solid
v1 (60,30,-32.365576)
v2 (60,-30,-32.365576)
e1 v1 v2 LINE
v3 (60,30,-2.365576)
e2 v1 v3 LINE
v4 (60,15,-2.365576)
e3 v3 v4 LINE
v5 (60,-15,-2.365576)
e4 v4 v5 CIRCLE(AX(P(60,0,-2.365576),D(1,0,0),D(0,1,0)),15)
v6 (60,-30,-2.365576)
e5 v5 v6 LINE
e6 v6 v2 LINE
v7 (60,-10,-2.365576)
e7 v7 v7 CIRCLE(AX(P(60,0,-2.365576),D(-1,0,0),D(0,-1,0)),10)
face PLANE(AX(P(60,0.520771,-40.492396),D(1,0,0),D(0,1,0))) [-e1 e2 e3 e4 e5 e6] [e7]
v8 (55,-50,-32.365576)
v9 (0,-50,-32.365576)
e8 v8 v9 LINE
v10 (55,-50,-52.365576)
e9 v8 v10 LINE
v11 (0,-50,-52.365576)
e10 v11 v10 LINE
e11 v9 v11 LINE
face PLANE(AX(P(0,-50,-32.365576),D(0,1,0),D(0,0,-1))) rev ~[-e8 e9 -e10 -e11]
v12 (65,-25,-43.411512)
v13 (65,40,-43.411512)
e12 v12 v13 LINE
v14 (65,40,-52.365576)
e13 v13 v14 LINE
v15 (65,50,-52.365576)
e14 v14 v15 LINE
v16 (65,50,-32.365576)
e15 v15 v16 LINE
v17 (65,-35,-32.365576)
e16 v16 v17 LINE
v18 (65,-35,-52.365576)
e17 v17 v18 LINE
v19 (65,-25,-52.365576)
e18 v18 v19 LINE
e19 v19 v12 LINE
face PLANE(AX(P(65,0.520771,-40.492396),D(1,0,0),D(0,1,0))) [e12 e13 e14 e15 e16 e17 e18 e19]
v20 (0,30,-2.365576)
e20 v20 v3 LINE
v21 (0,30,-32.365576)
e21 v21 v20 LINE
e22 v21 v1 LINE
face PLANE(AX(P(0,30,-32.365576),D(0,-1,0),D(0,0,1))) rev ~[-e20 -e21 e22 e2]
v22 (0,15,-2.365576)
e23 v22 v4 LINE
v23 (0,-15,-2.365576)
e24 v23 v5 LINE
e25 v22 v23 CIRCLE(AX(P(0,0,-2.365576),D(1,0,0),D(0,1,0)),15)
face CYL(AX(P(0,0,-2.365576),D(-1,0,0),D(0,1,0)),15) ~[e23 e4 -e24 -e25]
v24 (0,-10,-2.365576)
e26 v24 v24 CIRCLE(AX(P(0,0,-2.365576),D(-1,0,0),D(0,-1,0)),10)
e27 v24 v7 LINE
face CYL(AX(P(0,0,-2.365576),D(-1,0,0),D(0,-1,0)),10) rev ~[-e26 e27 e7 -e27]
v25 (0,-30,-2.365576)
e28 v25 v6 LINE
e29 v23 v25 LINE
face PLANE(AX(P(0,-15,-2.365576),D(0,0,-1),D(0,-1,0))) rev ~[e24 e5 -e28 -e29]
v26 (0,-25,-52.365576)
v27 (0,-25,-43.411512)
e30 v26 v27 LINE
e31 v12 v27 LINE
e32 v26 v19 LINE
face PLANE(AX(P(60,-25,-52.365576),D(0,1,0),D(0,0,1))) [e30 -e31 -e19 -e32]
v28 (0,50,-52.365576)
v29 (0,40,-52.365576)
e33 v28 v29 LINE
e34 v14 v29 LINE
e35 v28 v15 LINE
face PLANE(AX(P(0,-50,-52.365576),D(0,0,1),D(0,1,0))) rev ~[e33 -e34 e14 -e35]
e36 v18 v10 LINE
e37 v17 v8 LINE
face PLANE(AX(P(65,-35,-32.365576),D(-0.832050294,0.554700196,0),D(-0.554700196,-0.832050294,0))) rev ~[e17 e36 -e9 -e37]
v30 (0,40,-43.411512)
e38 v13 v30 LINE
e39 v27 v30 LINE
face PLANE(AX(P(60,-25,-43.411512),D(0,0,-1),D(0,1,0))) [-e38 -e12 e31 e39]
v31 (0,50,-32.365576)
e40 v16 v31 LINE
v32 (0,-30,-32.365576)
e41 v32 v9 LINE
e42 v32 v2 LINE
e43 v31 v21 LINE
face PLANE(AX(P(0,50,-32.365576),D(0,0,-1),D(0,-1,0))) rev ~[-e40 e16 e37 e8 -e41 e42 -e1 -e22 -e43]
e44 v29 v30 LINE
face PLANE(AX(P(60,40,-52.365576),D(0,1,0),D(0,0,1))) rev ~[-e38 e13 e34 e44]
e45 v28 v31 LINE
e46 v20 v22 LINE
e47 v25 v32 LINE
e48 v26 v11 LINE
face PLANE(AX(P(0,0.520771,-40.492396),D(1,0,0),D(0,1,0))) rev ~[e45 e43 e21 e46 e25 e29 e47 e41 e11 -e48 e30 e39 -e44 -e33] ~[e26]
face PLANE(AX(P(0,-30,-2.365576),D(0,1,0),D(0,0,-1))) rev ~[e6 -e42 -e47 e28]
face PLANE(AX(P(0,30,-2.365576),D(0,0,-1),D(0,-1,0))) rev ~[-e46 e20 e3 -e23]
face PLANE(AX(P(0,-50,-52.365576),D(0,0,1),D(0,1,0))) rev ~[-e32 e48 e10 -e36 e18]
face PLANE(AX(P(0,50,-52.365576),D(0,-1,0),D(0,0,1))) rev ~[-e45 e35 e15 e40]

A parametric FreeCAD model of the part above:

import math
import FreeCAD as App
import Part
import Sketcher
from FreeCAD import Vector

doc = App.newDocument("Part")
body = doc.addObject("PartDesign::Body", "Body")

sketch1 = body.newObject("Sketcher::SketchObject", "Sketch")
sketch1.AttachmentSupport = (doc.getObject("YZ_Plane"), [""])
sketch1.MapMode = "FlatFace"
sketch1.addGeometry([
    Part.LineSegment(Vector(-50, -32, 0), Vector(-50, -52, 0)),
    Part.LineSegment(Vector(-50, -52, 0), Vector(-25, -52, 0)),
    Part.LineSegment(Vector(-25, -52, 0), Vector(-25, -43, 0)),
    Part.LineSegment(Vector(-25, -43, 0), Vector(40, -43, 0)),
    Part.LineSegment(Vector(40, -43, 0), Vector(40, -52, 0)),
    Part.LineSegment(Vector(40, -52, 0), Vector(50, -52, 0)),
    Part.LineSegment(Vector(50, -52, 0), Vector(50, -32, 0)),
    Part.LineSegment(Vector(50, -32, 0), Vector(-50, -32, 0)),
], False)
sketch1.addConstraint([
    Sketcher.Constraint("Coincident", 0, 2, 1, 1),
    Sketcher.Constraint("Coincident", 1, 2, 2, 1),
    Sketcher.Constraint("Coincident", 2, 2, 3, 1),
    Sketcher.Constraint("Coincident", 3, 2, 4, 1),
    Sketcher.Constraint("Coincident", 4, 2, 5, 1),
    Sketcher.Constraint("Coincident", 5, 2, 6, 1),
    Sketcher.Constraint("Coincident", 6, 2, 7, 1),
    Sketcher.Constraint("Coincident", 7, 2, 0, 1),
    Sketcher.Constraint("Vertical", 0),
    Sketcher.Constraint("Horizontal", 1),
    Sketcher.Constraint("Vertical", 2),
    Sketcher.Constraint("Horizontal", 3),
    Sketcher.Constraint("Vertical", 4),
    Sketcher.Constraint("Horizontal", 5),
    Sketcher.Constraint("Vertical", 6),
    Sketcher.Constraint("Horizontal", 7),
    Sketcher.Constraint("Symmetric", 0, 2, 5, 2, -2),
    Sketcher.Constraint("DistanceX", 1, 1, 1, 2, 25.0),
    Sketcher.Constraint("DistanceX", 3, 1, 3, 2, 65.0),
    Sketcher.Constraint("DistanceX", 5, 1, 5, 2, 10.0),
    Sketcher.Constraint("DistanceY", 0, 2, 0, 1, 20.0),
    Sketcher.Constraint("DistanceY", 2, 1, 2, 2, 8.954064),
    Sketcher.Constraint("DistanceY", 2, 2, -1, 1, 43.411512),
])
pad1 = body.newObject("PartDesign::Pad", "Pad")
pad1.Profile = sketch1
pad1.Length = 65

sketch2 = body.newObject("Sketcher::SketchObject", "Sketch001")
sketch2.AttachmentSupport = (doc.getObject("YZ_Plane"), [""])
sketch2.MapMode = "FlatFace"
sketch2.addGeometry([
    Part.LineSegment(Vector(-50, -32, 0), Vector(-50, -52, 0)),
    Part.LineSegment(Vector(-50, -52, 0), Vector(50, -52, 0)),
    Part.LineSegment(Vector(50, -52, 0), Vector(50, -32, 0)),
    Part.LineSegment(Vector(50, -32, 0), Vector(30, -32, 0)),
    Part.LineSegment(Vector(30, -32, 0), Vector(30, -2, 0)),
    Part.LineSegment(Vector(30, -2, 0), Vector(15, -2, 0)),
    Part.ArcOfCircle(Part.Circle(Vector(0, -2, 0), Vector(0, 0, 1), 15), math.radians(0), math.radians(180)),
    Part.LineSegment(Vector(-15, -2, 0), Vector(-30, -2, 0)),
    Part.LineSegment(Vector(-30, -2, 0), Vector(-30, -32, 0)),
    Part.LineSegment(Vector(-30, -32, 0), Vector(-50, -32, 0)),
    Part.Circle(Vector(0, -2, 0), Vector(0, 0, 1), 10),
], False)
sketch2.addConstraint([
    Sketcher.Constraint("Coincident", 0, 2, 1, 1),
    Sketcher.Constraint("Coincident", 1, 2, 2, 1),
    Sketcher.Constraint("Coincident", 2, 2, 3, 1),
    Sketcher.Constraint("Coincident", 3, 2, 4, 1),
    Sketcher.Constraint("Coincident", 4, 2, 5, 1),
    Sketcher.Constraint("Coincident", 5, 2, 6, 1),
    Sketcher.Constraint("Coincident", 6, 2, 7, 1),
    Sketcher.Constraint("Coincident", 7, 2, 8, 1),
    Sketcher.Constraint("Coincident", 8, 2, 9, 1),
    Sketcher.Constraint("Coincident", 9, 2, 0, 1),
    Sketcher.Constraint("Vertical", 0),
    Sketcher.Constraint("Horizontal", 1),
    Sketcher.Constraint("Vertical", 2),
    Sketcher.Constraint("Horizontal", 3),
    Sketcher.Constraint("Vertical", 4),
    Sketcher.Constraint("Horizontal", 5),
    Sketcher.Constraint("Horizontal", 7),
    Sketcher.Constraint("Vertical", 8),
    Sketcher.Constraint("Horizontal", 9),
    Sketcher.Constraint("Coincident", 10, 3, 6, 3),
    Sketcher.Constraint("Symmetric", 5, 2, 6, 2, -2),
    Sketcher.Constraint("Symmetric", 3, 2, 8, 2, -2),
    Sketcher.Constraint("Horizontal", 10, 3, 4, 2),
    Sketcher.Constraint("Equal", 3, 9),
    Sketcher.Constraint("Equal", 9, 0),
    Sketcher.Constraint("Diameter", 10, 20.0),
    Sketcher.Constraint("Radius", 6, 15.0),
    Sketcher.Constraint("DistanceX", 1, 1, 1, 2, 100.0),
    Sketcher.Constraint("DistanceX", 3, 2, 3, 1, 20.0),
    Sketcher.Constraint("DistanceY", 4, 1, 4, 2, 30.0),
    Sketcher.Constraint("DistanceY", 6, 3, -1, 1, 2.365576),
])
pad2 = body.newObject("PartDesign::Pad", "Pad001")
pad2.Profile = sketch2
pad2.Length = 60

sketch3 = body.newObject("Sketcher::SketchObject", "Sketch002")
sketch3.AttachmentSupport = (doc.getObject("YZ_Plane"), [""])
sketch3.MapMode = "FlatFace"
sketch3.AttachmentOffset = App.Placement(Vector(0, 0, 60), App.Rotation())
sketch3.addGeometry([
    Part.LineSegment(Vector(-25, -43, 0), Vector(-25, -52, 0)),
    Part.LineSegment(Vector(-25, -52, 0), Vector(40, -52, 0)),
    Part.LineSegment(Vector(40, -52, 0), Vector(40, -43, 0)),
    Part.LineSegment(Vector(40, -43, 0), Vector(-25, -43, 0)),
], False)
sketch3.addConstraint([
    Sketcher.Constraint("Coincident", 0, 2, 1, 1),
    Sketcher.Constraint("Coincident", 1, 2, 2, 1),
    Sketcher.Constraint("Coincident", 2, 2, 3, 1),
    Sketcher.Constraint("Coincident", 3, 2, 0, 1),
    Sketcher.Constraint("Vertical", 0),
    Sketcher.Constraint("Horizontal", 1),
    Sketcher.Constraint("Vertical", 2),
    Sketcher.Constraint("Horizontal", 3),
    Sketcher.Constraint("DistanceX", 1, 1, 1, 2, 65.0),
    Sketcher.Constraint("DistanceX", 0, 2, -1, 1, 25.0),
    Sketcher.Constraint("DistanceY", 0, 2, 0, 1, 8.954064),
    Sketcher.Constraint("DistanceY", 2, 2, -1, 1, 43.411512),
])
pocket1 = body.newObject("PartDesign::Pocket", "Pocket")
pocket1.Profile = sketch3
pocket1.Length = 100

sketch4 = body.newObject("Sketcher::SketchObject", "Sketch003")
sketch4.AttachmentSupport = (doc.getObject("XY_Plane"), [""])
sketch4.MapMode = "FlatFace"
sketch4.AttachmentOffset = App.Placement(Vector(0, 0, -32.365576), App.Rotation())
sketch4.addGeometry([
    Part.LineSegment(Vector(65, -35, 0), Vector(55, -50, 0)),
    Part.LineSegment(Vector(55, -50, 0), Vector(65, -50, 0)),
    Part.LineSegment(Vector(65, -50, 0), Vector(65, -35, 0)),
], False)
sketch4.addConstraint([
    Sketcher.Constraint("Coincident", 0, 2, 1, 1),
    Sketcher.Constraint("Coincident", 1, 2, 2, 1),
    Sketcher.Constraint("Coincident", 2, 2, 0, 1),
    Sketcher.Constraint("Horizontal", 1),
    Sketcher.Constraint("Vertical", 2),
    Sketcher.Constraint("DistanceX", 1, 1, 1, 2, 10.0),
    Sketcher.Constraint("DistanceY", 2, 1, 2, 2, 15.0),
    Sketcher.Constraint("DistanceX", -1, 1, 0, 2, 55.0),
    Sketcher.Constraint("DistanceY", 0, 2, -1, 1, 50.0),
])
pocket2 = body.newObject("PartDesign::Pocket", "Pocket001")
pocket2.Profile = sketch4
pocket2.Length = 25

doc.recompute()
